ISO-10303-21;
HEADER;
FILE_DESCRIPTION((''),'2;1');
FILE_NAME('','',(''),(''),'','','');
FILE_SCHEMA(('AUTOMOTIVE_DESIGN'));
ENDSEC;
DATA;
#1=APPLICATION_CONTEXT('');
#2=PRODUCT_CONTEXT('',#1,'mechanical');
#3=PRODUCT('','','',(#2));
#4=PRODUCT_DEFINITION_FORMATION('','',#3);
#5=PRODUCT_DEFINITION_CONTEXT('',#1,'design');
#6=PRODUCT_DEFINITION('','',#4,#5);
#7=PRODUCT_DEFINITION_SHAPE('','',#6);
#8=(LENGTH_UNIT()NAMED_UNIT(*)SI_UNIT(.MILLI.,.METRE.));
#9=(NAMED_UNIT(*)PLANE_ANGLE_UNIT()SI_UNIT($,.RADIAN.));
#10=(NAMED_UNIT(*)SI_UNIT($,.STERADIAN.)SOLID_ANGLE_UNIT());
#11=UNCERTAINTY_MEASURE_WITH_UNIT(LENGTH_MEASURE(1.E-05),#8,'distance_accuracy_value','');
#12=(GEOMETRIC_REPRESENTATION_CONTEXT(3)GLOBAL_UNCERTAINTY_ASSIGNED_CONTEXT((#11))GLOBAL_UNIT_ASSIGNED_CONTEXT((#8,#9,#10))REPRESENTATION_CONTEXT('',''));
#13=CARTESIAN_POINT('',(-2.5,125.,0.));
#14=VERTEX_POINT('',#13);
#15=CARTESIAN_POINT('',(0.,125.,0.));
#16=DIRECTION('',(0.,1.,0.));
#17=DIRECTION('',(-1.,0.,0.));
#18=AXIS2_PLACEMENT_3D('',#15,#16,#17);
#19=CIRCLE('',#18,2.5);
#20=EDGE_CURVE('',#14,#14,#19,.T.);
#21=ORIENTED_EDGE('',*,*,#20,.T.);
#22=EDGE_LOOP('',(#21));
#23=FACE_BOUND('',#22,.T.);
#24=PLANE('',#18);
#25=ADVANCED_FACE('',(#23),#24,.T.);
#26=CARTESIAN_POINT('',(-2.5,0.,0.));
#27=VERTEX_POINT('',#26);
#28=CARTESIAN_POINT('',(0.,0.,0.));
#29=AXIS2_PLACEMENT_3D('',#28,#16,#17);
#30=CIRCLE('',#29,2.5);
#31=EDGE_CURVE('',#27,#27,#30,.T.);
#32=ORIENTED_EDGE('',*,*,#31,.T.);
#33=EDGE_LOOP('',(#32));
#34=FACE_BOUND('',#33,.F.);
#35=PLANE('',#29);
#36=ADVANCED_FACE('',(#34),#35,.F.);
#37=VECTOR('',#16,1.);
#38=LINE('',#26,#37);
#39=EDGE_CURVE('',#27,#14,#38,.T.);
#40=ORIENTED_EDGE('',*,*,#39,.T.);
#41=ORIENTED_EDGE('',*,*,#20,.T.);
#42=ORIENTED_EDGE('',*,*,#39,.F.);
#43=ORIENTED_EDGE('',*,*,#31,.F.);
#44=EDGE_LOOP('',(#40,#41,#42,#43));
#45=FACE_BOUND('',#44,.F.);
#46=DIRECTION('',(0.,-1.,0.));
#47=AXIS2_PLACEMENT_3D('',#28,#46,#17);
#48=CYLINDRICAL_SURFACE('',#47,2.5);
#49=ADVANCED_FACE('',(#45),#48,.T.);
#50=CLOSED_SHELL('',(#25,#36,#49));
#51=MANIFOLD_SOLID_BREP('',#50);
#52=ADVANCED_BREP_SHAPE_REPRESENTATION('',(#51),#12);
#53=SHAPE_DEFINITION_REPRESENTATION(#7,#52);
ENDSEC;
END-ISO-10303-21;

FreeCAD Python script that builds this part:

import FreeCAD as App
import Part
import Sketcher
from FreeCAD import Vector

doc = App.newDocument("Part")
body = doc.addObject("PartDesign::Body", "Body")

# Sketch on XZ plane
sketch1 = doc.addObject("Sketcher::SketchObject", "Sketch")
body.addObject(sketch1)
sketch1.AttachmentSupport = (doc.XZ_Plane, [""])
sketch1.MapMode = "FlatFace"
sketch1.addGeometry(Part.Circle(Vector(0, 0, 0), Vector(0, 0, 1), 2.5), False)
sketch1.addConstraint(Sketcher.Constraint("Coincident", 0, 3, -1, 1))
sketch1.addConstraint(Sketcher.Constraint("Diameter", 0, 5.0))
pad1 = doc.addObject("PartDesign::Pad", "Pad")
body.addObject(pad1)
pad1.Profile = sketch1
pad1.Length = 125
pad1.Reversed = True

doc.recompute()
